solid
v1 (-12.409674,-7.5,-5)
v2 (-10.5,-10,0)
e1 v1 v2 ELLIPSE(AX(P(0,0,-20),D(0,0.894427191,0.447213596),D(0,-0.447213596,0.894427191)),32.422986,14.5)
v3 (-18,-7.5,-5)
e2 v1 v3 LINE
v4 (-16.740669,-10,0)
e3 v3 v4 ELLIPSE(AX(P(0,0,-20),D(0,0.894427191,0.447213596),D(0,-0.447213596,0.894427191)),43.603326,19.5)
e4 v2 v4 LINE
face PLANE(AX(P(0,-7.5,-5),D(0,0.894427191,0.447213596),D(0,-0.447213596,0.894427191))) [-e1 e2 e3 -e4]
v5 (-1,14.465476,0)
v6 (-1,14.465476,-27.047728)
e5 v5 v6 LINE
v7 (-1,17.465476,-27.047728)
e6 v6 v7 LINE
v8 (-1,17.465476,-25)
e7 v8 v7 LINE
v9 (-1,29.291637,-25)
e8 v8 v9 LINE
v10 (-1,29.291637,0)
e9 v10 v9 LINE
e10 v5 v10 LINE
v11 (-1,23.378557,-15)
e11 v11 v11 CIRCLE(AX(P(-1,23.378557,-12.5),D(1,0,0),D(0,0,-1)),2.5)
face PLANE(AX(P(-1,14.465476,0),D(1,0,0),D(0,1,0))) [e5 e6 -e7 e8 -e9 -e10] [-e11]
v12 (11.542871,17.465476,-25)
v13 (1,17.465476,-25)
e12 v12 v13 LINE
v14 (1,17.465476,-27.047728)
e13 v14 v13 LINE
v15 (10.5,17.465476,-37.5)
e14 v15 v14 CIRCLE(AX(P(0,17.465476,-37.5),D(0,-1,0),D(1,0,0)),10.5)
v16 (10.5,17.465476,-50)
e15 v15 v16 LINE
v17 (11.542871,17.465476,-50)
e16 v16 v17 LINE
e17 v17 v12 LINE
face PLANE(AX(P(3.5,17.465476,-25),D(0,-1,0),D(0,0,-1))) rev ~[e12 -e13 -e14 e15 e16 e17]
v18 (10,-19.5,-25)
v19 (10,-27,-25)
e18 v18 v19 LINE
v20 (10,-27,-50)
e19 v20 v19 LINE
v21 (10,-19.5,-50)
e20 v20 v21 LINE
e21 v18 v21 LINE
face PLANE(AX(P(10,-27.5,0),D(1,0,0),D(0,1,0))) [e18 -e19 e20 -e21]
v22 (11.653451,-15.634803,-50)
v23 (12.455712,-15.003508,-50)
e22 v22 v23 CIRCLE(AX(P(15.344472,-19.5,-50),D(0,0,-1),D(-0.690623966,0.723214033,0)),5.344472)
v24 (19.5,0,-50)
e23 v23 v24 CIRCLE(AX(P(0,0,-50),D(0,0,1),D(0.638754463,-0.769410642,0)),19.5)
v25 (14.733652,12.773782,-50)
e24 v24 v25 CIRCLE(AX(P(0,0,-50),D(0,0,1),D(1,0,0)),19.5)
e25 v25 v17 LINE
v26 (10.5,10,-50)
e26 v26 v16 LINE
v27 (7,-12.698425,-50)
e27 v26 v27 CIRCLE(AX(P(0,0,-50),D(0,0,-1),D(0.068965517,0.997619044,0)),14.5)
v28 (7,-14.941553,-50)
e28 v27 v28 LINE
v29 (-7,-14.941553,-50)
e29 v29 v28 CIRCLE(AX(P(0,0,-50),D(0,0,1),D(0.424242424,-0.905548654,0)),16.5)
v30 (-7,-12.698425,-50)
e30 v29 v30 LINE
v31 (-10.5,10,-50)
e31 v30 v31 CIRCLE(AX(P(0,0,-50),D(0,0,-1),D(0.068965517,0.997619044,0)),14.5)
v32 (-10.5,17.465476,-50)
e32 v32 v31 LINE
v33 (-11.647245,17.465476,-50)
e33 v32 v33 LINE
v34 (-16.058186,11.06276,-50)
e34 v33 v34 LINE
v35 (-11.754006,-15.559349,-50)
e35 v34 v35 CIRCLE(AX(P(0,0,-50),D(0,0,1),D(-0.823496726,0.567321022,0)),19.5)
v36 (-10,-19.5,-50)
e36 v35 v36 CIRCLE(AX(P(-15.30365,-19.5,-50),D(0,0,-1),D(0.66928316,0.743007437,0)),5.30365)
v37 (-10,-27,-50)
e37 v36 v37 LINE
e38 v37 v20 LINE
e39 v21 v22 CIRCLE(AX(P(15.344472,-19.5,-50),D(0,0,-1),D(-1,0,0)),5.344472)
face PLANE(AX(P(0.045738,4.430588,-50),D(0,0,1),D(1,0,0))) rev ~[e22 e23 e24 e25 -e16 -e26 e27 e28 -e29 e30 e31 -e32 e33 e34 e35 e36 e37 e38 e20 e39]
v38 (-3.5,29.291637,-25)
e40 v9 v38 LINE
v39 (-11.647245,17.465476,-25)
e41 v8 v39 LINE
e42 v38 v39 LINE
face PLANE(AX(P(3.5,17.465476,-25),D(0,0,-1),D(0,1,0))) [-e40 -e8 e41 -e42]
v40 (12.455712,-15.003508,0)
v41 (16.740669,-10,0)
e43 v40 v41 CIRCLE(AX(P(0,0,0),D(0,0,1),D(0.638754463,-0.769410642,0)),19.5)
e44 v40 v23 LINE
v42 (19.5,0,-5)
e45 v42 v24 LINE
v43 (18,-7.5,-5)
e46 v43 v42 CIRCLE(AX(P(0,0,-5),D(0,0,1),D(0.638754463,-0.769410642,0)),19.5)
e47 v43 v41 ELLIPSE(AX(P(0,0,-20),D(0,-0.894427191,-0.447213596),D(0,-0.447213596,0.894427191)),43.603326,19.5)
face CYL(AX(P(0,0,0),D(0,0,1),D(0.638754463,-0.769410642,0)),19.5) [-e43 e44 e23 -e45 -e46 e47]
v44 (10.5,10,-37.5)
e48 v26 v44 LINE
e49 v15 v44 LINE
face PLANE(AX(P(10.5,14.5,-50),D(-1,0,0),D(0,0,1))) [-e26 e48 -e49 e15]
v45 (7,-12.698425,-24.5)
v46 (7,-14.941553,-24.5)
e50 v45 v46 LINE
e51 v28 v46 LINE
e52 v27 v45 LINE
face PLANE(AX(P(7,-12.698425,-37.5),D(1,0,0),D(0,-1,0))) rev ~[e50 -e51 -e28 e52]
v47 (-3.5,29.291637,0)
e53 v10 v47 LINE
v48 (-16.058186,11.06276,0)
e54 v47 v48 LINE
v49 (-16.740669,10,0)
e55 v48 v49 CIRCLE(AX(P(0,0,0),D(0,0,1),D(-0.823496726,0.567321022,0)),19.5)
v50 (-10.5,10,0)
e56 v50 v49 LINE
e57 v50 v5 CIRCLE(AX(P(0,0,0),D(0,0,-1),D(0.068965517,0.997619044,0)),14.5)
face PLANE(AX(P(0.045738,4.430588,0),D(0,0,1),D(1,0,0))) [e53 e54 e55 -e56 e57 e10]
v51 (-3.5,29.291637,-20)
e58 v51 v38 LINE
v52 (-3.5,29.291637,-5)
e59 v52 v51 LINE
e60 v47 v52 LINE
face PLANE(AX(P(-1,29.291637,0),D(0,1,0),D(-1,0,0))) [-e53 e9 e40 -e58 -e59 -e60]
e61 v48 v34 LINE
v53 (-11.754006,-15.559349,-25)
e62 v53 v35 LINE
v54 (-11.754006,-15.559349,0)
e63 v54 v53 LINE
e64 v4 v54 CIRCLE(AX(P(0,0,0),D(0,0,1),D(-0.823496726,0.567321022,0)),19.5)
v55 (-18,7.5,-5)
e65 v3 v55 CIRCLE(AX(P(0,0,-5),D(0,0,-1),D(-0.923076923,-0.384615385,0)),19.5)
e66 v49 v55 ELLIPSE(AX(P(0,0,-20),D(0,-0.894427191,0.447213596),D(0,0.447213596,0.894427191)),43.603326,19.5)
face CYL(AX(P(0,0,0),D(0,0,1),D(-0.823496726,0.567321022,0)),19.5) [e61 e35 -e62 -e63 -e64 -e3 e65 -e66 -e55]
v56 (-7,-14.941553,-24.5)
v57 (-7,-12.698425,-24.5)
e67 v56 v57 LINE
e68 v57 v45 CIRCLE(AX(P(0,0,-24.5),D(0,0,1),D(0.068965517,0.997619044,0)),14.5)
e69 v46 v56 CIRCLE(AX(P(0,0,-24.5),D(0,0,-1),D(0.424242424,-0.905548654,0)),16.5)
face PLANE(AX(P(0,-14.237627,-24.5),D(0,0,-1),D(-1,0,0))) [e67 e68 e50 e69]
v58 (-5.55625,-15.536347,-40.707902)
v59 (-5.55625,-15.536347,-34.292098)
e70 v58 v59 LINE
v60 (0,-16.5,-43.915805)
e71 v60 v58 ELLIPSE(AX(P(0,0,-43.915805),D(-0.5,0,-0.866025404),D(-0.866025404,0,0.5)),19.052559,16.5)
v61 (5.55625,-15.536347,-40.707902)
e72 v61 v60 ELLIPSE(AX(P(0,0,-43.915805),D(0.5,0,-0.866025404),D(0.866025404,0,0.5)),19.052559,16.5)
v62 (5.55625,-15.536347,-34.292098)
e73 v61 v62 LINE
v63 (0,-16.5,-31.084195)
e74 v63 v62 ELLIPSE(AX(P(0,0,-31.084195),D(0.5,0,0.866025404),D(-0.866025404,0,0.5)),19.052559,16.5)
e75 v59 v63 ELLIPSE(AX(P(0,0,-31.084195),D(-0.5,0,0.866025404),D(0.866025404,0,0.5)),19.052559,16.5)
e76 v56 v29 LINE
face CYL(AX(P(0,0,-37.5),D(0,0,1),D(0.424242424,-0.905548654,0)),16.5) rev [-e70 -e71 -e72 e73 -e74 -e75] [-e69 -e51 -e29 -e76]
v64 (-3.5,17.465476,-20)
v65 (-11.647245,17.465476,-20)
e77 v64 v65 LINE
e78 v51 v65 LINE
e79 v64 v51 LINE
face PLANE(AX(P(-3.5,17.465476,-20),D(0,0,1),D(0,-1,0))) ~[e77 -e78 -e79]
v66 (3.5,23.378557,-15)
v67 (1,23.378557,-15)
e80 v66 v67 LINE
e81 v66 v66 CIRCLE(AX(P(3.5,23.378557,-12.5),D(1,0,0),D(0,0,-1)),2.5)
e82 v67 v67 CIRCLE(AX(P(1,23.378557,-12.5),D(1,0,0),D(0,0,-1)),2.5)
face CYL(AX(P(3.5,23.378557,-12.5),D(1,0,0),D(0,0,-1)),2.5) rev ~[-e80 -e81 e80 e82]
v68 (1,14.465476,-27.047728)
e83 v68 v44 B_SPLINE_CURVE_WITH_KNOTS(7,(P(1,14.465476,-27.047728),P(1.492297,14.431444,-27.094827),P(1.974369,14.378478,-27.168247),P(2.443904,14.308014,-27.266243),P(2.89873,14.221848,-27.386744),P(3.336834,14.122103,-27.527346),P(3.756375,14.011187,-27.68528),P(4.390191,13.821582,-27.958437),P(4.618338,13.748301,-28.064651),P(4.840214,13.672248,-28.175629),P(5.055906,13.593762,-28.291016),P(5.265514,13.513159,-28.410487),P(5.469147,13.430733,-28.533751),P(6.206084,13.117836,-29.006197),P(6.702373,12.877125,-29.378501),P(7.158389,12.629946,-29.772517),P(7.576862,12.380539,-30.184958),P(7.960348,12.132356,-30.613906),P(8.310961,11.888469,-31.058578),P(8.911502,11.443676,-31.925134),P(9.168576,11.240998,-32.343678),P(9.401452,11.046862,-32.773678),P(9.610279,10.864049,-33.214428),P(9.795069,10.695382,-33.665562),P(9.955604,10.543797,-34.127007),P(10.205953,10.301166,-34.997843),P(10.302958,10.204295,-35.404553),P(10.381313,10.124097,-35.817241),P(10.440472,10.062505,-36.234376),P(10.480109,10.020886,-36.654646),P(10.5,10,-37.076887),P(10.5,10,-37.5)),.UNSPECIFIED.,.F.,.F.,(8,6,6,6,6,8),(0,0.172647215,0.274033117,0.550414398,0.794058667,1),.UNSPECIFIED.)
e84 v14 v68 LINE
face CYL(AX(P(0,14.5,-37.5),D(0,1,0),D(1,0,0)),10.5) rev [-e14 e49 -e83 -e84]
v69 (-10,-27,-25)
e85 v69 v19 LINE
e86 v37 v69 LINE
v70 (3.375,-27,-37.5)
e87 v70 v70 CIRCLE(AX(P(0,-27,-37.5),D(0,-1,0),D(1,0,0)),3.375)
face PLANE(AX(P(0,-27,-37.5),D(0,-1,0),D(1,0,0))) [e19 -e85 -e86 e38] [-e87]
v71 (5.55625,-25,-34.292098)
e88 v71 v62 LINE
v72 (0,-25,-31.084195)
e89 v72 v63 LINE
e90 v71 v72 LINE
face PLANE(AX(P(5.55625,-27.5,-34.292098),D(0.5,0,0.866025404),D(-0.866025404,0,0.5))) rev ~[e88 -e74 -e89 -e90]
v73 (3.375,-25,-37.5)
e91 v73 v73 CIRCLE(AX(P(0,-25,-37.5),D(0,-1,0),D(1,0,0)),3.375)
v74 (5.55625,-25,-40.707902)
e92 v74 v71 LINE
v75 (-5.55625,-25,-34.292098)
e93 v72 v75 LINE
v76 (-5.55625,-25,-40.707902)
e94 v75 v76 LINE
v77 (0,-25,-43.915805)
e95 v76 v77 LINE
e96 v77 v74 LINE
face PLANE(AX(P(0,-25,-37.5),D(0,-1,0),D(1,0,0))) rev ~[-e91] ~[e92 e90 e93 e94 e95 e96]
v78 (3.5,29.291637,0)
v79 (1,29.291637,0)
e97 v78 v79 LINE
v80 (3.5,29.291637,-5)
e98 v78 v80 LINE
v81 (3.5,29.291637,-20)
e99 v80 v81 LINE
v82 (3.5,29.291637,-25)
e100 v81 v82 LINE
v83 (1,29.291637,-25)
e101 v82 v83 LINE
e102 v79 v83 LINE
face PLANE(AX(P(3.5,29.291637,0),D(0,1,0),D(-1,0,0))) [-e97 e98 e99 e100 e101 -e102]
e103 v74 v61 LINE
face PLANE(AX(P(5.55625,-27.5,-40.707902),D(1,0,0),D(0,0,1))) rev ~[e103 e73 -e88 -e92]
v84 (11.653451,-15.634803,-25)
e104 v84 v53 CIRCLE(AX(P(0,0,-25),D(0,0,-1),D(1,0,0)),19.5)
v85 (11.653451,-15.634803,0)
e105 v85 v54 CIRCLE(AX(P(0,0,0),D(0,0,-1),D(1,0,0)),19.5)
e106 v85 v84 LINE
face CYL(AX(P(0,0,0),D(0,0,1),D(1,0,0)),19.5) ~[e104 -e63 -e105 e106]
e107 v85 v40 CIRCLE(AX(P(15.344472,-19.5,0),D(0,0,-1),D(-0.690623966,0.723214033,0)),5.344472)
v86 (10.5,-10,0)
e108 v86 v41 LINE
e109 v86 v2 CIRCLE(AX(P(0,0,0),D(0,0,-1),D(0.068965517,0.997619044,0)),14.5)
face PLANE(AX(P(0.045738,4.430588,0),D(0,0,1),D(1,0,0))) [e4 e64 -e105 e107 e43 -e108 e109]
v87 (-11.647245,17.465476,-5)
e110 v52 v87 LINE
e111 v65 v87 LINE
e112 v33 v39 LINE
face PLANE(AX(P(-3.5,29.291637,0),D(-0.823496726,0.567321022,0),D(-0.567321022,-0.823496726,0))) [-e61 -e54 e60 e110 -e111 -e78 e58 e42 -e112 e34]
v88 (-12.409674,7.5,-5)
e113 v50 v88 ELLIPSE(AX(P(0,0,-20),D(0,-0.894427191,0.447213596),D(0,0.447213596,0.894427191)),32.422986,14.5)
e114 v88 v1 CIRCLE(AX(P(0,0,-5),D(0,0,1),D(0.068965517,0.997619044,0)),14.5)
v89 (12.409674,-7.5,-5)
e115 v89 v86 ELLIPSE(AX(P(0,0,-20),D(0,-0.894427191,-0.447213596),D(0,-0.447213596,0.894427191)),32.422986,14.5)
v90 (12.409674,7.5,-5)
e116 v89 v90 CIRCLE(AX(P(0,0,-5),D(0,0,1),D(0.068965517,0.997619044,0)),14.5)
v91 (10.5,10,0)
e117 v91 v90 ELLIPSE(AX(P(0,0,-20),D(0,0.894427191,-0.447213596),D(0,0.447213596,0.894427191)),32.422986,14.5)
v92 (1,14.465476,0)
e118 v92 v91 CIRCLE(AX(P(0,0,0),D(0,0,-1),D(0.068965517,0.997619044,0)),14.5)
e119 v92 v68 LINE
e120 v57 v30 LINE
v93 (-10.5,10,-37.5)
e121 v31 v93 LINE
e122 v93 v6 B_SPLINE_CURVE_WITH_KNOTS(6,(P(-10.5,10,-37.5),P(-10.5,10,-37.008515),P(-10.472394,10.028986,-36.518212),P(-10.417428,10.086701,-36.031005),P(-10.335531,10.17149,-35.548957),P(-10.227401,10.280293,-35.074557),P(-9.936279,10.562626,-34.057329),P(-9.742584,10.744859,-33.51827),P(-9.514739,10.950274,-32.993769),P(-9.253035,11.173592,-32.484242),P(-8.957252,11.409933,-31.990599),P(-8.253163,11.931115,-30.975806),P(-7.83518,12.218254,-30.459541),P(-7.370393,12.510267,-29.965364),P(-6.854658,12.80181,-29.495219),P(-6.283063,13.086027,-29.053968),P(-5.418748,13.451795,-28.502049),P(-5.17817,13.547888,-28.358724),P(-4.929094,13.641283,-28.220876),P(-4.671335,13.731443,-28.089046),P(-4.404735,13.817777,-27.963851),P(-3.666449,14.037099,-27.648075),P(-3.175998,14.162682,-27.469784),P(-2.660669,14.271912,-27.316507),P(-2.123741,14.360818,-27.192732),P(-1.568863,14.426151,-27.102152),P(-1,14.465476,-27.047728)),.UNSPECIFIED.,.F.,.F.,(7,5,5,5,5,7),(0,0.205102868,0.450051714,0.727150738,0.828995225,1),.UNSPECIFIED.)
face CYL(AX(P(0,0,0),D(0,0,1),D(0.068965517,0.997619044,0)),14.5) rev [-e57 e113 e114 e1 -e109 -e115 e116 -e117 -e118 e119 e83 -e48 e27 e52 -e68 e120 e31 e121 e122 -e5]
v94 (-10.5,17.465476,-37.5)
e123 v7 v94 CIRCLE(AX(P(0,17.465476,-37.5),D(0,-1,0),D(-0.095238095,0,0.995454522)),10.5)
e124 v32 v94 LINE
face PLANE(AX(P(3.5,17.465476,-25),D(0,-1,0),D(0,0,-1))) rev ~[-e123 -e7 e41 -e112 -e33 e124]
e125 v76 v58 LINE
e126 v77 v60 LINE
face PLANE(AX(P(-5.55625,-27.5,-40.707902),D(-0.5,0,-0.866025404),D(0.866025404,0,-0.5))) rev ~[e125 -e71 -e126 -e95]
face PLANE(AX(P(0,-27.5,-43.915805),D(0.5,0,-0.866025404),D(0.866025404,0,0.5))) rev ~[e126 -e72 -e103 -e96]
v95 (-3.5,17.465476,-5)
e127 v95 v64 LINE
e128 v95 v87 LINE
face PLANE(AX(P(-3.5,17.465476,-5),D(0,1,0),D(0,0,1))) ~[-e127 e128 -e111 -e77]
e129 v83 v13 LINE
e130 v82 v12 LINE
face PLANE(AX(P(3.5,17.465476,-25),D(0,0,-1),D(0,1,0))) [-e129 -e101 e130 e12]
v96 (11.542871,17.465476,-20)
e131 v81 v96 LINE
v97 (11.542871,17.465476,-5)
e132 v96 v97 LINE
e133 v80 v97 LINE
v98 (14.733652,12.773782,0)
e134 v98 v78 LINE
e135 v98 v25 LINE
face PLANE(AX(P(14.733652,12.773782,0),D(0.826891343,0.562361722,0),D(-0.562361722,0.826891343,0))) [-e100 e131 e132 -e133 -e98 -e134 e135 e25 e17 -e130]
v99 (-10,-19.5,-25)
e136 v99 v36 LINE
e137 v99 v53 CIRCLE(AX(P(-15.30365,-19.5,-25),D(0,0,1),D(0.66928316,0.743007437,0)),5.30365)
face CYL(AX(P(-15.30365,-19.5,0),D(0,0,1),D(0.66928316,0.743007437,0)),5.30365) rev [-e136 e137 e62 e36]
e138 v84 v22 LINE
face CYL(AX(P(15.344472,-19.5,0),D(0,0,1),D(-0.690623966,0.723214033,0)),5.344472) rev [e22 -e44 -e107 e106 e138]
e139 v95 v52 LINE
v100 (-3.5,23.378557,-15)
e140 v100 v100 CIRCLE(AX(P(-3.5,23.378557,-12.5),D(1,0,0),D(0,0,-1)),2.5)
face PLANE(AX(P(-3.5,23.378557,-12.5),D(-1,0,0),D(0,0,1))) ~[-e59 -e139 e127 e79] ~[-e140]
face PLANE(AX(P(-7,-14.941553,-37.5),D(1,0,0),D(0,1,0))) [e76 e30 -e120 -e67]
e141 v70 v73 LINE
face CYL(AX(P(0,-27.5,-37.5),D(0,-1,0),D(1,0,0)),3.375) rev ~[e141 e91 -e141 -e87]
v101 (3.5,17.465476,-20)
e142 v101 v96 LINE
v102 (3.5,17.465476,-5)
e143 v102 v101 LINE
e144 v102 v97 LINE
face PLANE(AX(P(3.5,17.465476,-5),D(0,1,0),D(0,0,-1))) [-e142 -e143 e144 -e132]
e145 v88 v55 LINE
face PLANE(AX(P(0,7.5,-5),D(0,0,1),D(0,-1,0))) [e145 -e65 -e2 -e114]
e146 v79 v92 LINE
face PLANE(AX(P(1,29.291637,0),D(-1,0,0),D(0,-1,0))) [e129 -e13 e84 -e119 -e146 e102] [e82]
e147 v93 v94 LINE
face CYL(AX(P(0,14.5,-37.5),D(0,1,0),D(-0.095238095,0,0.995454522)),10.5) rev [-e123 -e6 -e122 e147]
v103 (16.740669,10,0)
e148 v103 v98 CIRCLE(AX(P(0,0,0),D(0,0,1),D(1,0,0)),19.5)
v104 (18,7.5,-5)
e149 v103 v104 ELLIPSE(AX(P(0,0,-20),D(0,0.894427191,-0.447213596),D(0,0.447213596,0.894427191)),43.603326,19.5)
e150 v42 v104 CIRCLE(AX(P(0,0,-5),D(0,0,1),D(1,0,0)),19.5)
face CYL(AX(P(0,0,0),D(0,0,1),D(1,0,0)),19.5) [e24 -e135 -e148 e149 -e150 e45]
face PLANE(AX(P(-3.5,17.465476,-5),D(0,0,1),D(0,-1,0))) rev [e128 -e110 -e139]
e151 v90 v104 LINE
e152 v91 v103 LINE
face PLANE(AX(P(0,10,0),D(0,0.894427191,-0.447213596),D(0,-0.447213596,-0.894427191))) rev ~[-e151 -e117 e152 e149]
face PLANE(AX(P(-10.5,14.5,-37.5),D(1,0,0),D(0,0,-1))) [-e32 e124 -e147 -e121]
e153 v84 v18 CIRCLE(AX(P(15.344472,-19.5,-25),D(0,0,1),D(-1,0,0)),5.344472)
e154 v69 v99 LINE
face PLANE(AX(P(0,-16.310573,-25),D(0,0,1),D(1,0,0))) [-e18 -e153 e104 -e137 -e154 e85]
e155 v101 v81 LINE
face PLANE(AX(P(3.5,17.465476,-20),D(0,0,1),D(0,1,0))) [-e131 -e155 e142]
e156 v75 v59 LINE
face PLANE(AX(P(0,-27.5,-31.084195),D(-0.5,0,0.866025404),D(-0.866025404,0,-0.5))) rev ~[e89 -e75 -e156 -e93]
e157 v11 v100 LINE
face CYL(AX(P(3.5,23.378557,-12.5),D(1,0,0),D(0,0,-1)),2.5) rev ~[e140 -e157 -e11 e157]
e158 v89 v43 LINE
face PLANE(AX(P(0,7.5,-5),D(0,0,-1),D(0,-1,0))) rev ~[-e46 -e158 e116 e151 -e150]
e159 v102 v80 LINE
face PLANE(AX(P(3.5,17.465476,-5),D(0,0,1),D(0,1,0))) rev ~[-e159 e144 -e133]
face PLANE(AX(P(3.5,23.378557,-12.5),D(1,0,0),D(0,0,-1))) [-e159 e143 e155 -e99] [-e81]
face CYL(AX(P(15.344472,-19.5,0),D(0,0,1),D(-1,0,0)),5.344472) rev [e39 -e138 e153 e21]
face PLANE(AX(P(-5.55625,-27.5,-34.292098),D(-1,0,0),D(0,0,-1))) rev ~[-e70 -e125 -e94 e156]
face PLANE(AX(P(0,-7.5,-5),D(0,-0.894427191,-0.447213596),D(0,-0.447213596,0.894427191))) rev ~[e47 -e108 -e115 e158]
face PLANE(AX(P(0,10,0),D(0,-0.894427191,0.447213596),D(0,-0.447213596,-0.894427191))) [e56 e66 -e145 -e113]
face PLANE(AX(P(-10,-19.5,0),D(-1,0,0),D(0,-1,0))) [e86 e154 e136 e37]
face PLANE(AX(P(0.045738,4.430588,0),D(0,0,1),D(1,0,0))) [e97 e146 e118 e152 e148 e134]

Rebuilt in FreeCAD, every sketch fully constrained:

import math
import FreeCAD as App
import Part
import Sketcher
from FreeCAD import Vector
Q = App.Units.Quantity

doc = App.newDocument("Part")
params = doc.addObject("Spreadsheet::Sheet", "Params")
for row, (alias, value) in enumerate([
    ("sketch1_radius", "14.5 mm"),
    ("sketch1_radius2", "19.5 mm"),
    ("sketch1_width", "20 mm"),
    ("sketch1_height", "8 mm"),
    ("sketch1_width2", "2.5 mm"),
    ("pad1_length", "50 mm"),
    ("sketch2_height", "15 mm"),
    ("sketch3_diameter", "5 mm"),
    ("sketch4_height", "25 mm"),
    ("sketch5_radius", "10.5 mm"),
    ("sketch5_width", "9.5 mm"),
    ("sketch5_height", "12.5 mm"),
    ("pocket4_length", "4.5 mm"),
    ("sketch6_radius", "10.5 mm"),
    ("sketch6_width", "9.5 mm"),
    ("sketch6_height", "12.5 mm"),
    ("pocket5_length", "4.5 mm"),
    ("sketch7_radius", "10.5 mm"),
    ("sketch7_width", "9.5 mm"),
    ("sketch7_height", "12.5 mm"),
    ("sketch8_radius", "10.5 mm"),
    ("sketch8_width", "9.5 mm"),
    ("sketch8_height", "12.5 mm"),
    ("sketch9_radius", "16.5 mm"),
    ("sketch9_width", "14 mm"),
    ("pocket8_length", "13 mm"),
    ("pocket8_length2", "13.5 mm"),
    ("sketch10_width", "15 mm"),
    ("sketch10_width2", "20 mm"),
    ("sketch12_diameter", "6.75 mm"),
    ("pad2_length", "2.5 mm"),
    ("sketch13_radius", "19.5 mm"),
    ("sketch13_height", "27.5 mm"),
    ("pocket11_length", "25 mm"),
    ("sketch14_width", "20 mm"),
    ("sketch14_height", "25 mm"),
    ("pocket12_length", "0.5 mm"),
], start=1):
    params.set(f"A{row}", alias)
    params.set(f"B{row}", "=" + value)
    params.setAlias(f"B{row}", alias)

body = doc.addObject("PartDesign::Body", "Body")

# Sketch on XY plane
sketch1 = body.newObject("Sketcher::SketchObject", "Sketch")
sketch1.AttachmentSupport = (doc.getObject("XY_Plane"), [""])
sketch1.MapMode = "FlatFace"
sketch1.addGeometry([
    Part.LineSegment(Vector(3.5, 29.3, 0), Vector(1, 29.3, 0)),  # 0
    Part.LineSegment(Vector(1, 29.3, 0), Vector(1, 14.5, 0)),  # 1
    Part.ArcOfCircle(Part.Circle(Vector(0, 0, 0), Vector(0, 0, 1), 14.5), math.radians(94), math.radians(446)),  # 2
    Part.LineSegment(Vector(-1, 14.5, 0), Vector(-1, 29.3, 0)),  # 3
    Part.LineSegment(Vector(-1, 29.3, 0), Vector(-3.5, 29.3, 0)),  # 4
    Part.LineSegment(Vector(-3.5, 29.3, 0), Vector(-16.1, 11.1, 0)),  # 5
    Part.ArcOfCircle(Part.Circle(Vector(0, 0, 0), Vector(0, 0, 1), 19.5), math.radians(145), math.radians(233)),  # 6
    Part.ArcOfCircle(Part.Circle(Vector(-15.3, -19.5, 0), Vector(0, 0, 1), 5.3), math.radians(0), math.radians(48)),  # 7
    Part.LineSegment(Vector(-10, -19.5, 0), Vector(-10, -27.5, 0)),  # 8
    Part.LineSegment(Vector(-10, -27.5, 0), Vector(10, -27.5, 0)),  # 9
    Part.LineSegment(Vector(10, -27.5, 0), Vector(10, -19.5, 0)),  # 10
    Part.ArcOfCircle(Part.Circle(Vector(15.3, -19.5, 0), Vector(0, 0, 1), 5.3), math.radians(134), math.radians(180)),  # 11
    Part.ArcOfCircle(Part.Circle(Vector(15.3, -19.5, 0), Vector(0, 0, 1), 5.3), math.radians(122.72), math.radians(133.68)),  # 12
    Part.ArcOfCircle(Part.Circle(Vector(0, 0, 0), Vector(0, 0, 1), 19.5), math.radians(-50), math.radians(0)),  # 13
    Part.ArcOfCircle(Part.Circle(Vector(0, 0, 0), Vector(0, 0, 1), 19.5), math.radians(0), math.radians(41)),  # 14
    Part.LineSegment(Vector(14.7, 12.8, 0), Vector(3.5, 29.3, 0)),  # 15
], False)
sketch1.addConstraint([
    Sketcher.Constraint("Coincident", 0, 2, 1, 1),
    Sketcher.Constraint("Coincident", 1, 2, 2, 2),
    Sketcher.Constraint("Coincident", 2, 1, 3, 1),
    Sketcher.Constraint("Coincident", 3, 2, 4, 1),
    Sketcher.Constraint("Coincident", 4, 2, 5, 1),
    Sketcher.Constraint("Tangent", 5, 2, 6, 1),
    Sketcher.Constraint("Coincident", 6, 2, 7, 2),
    Sketcher.Constraint("Tangent", 7, 1, 8, 1),
    Sketcher.Constraint("Coincident", 8, 2, 9, 1),
    Sketcher.Constraint("Coincident", 9, 2, 10, 1),
    Sketcher.Constraint("Tangent", 10, 2, 11, 2),
    Sketcher.Constraint("Tangent", 11, 1, 12, 2),
    Sketcher.Constraint("Coincident", 12, 1, 13, 1),
    Sketcher.Constraint("Tangent", 13, 2, 14, 1),
    Sketcher.Constraint("Coincident", 14, 2, 15, 1),
    Sketcher.Constraint("Coincident", 15, 2, 0, 1),
    Sketcher.Constraint("Horizontal", 0),
    Sketcher.Constraint("Vertical", 1),
    Sketcher.Constraint("Vertical", 3),
    Sketcher.Constraint("Horizontal", 4),
    Sketcher.Constraint("Vertical", 8),
    Sketcher.Constraint("Horizontal", 9),
    Sketcher.Constraint("Vertical", 10),
    Sketcher.Constraint("Coincident", 2, 3, -1, 1),
    Sketcher.Constraint("Coincident", 6, 3, -1, 1),
    Sketcher.Constraint("Coincident", 13, 3, -1, 1),
    Sketcher.Constraint("Equal", 11, 12),
    Sketcher.Constraint("Equal", 6, 13),
    Sketcher.Constraint("Equal", 13, 14),
    Sketcher.Constraint("Symmetric", 0, 2, 3, 2, -2),
    Sketcher.Constraint("Symmetric", 7, 1, 10, 2, -2),
    Sketcher.Constraint("PointOnObject", 13, 2, -1),
    Sketcher.Constraint("Equal", 0, 4),
    Sketcher.Constraint("Radius", 2, Q("14.5 mm")),
    Sketcher.Constraint("Radius", 6, Q("19.5 mm")),
    Sketcher.Constraint("DistanceX", 9, 1, 9, 2, Q("20 mm")),
    Sketcher.Constraint("DistanceY", 8, 2, 8, 1, Q("8 mm")),
    Sketcher.Constraint("DistanceX", 0, 2, 0, 1, Q("2.5 mm")),
    Sketcher.Constraint("DistanceX", -1, 1, 0, 2, Q("1 mm")),
    Sketcher.Constraint("DistanceY", 7, 3, -1, 1, Q("19.5 mm")),
    Sketcher.Constraint("Radius", 7, Q("5.30365 mm")),
    Sketcher.Constraint("Radius", 11, Q("5.344472 mm")),
    Sketcher.Constraint("DistanceY", 1, 2, 1, 1, Q("14.826161 mm")),
    Sketcher.Constraint("DistanceX", -1, 1, 11, 1, Q("11.653451 mm")),
    Sketcher.Constraint("DistanceX", -1, 1, 14, 2, Q("14.733652 mm")),
])
sketch1.setExpression("Constraints[33]", "Params.sketch1_radius")
sketch1.setExpression("Constraints[34]", "Params.sketch1_radius2")
sketch1.setExpression("Constraints[35]", "Params.sketch1_width")
sketch1.setExpression("Constraints[36]", "Params.sketch1_height")
sketch1.setExpression("Constraints[37]", "Params.sketch1_width2")
pad1 = body.newObject("PartDesign::Pad", "Pad")
pad1.Profile = sketch1
pad1.setExpression("Length", "Params.pad1_length")
pad1.Reversed = True

# Sketch on YZ plane
sketch2 = body.newObject("Sketcher::SketchObject", "Sketch001")
sketch2.AttachmentSupport = (doc.getObject("YZ_Plane"), [""])
sketch2.MapMode = "FlatFace"
sketch2.AttachmentOffset = App.Placement(Vector(0, 0, 3.5), App.Rotation())
sketch2.addGeometry([
    Part.LineSegment(Vector(29, -5, 0), Vector(17, -5, 0)),
    Part.LineSegment(Vector(17, -5, 0), Vector(17, -20, 0)),
    Part.LineSegment(Vector(17, -20, 0), Vector(29, -20, 0)),
    Part.LineSegment(Vector(29, -20, 0), Vector(29, -5, 0)),
], False)
sketch2.addConstraint([
    Sketcher.Constraint("Coincident", 0, 2, 1, 1),
    Sketcher.Constraint("Coincident", 1, 2, 2, 1),
    Sketcher.Constraint("Coincident", 2, 2, 3, 1),
    Sketcher.Constraint("Coincident", 3, 2, 0, 1),
    Sketcher.Constraint("Horizontal", 0),
    Sketcher.Constraint("Vertical", 1),
    Sketcher.Constraint("Horizontal", 2),
    Sketcher.Constraint("Vertical", 3),
    Sketcher.Constraint("DistanceY", 1, 2, 1, 1, Q("15 mm")),
    Sketcher.Constraint("DistanceY", 0, 2, -1, 1, Q("5 mm")),
    Sketcher.Constraint("DistanceX", 0, 2, 0, 1, Q("11.826161 mm")),
    Sketcher.Constraint("DistanceX", -1, 1, 0, 2, Q("17.465476 mm")),
])
sketch2.setExpression("Constraints[8]", "Params.sketch2_height")
pocket1 = body.newObject("PartDesign::Pocket", "Pocket")
pocket1.Profile = sketch2
pocket1.Type = "ThroughAll"
pocket1.Reversed = True
doc.recompute()

mirrored = body.newObject("PartDesign::Mirrored", "Mirrored")
mirrored.Originals = [pocket1]
mirrored.MirrorPlane = (doc.getObject("YZ_Plane"), [""])
body.Tip = mirrored

# Sketch on YZ plane
sketch3 = body.newObject("Sketcher::SketchObject", "Sketch002")
sketch3.AttachmentSupport = (doc.getObject("YZ_Plane"), [""])
sketch3.MapMode = "FlatFace"
sketch3.AttachmentOffset = App.Placement(Vector(0, 0, 3.5), App.Rotation())
sketch3.addGeometry(Part.Circle(Vector(23.4, -12.5, 0), Vector(0, 0, 1), 2.5), False)
sketch3.addConstraint([
    Sketcher.Constraint("Diameter", 0, Q("5 mm")),
    Sketcher.Constraint("DistanceY", 0, 3, -1, 1, Q("12.5 mm")),
    Sketcher.Constraint("DistanceX", -1, 1, 0, 3, Q("23.378557 mm")),
])
sketch3.setExpression("Constraints[0]", "Params.sketch3_diameter")
pocket2 = body.newObject("PartDesign::Pocket", "Pocket001")
pocket2.Profile = sketch3
pocket2.Type = "ThroughAll"
pocket2.Midplane = True

# Sketch on YZ plane
sketch4 = body.newObject("Sketcher::SketchObject", "Sketch003")
sketch4.AttachmentSupport = (doc.getObject("YZ_Plane"), [""])
sketch4.MapMode = "FlatFace"
sketch4.AttachmentOffset = App.Placement(Vector(0, 0, 3.5), App.Rotation())
sketch4.addGeometry([
    Part.LineSegment(Vector(29, -25, 0), Vector(17, -25, 0)),
    Part.LineSegment(Vector(17, -25, 0), Vector(17, -50, 0)),
    Part.LineSegment(Vector(17, -50, 0), Vector(29, -50, 0)),
    Part.LineSegment(Vector(29, -50, 0), Vector(29, -25, 0)),
], False)
sketch4.addConstraint([
    Sketcher.Constraint("Coincident", 0, 2, 1, 1),
    Sketcher.Constraint("Coincident", 1, 2, 2, 1),
    Sketcher.Constraint("Coincident", 2, 2, 3, 1),
    Sketcher.Constraint("Coincident", 3, 2, 0, 1),
    Sketcher.Constraint("Horizontal", 0),
    Sketcher.Constraint("Vertical", 1),
    Sketcher.Constraint("Horizontal", 2),
    Sketcher.Constraint("Vertical", 3),
    Sketcher.Constraint("DistanceY", 1, 2, 1, 1, Q("25 mm")),
    Sketcher.Constraint("DistanceY", 0, 2, -1, 1, Q("25 mm")),
    Sketcher.Constraint("DistanceX", 0, 2, 0, 1, Q("11.826161 mm")),
    Sketcher.Constraint("DistanceX", -1, 1, 0, 2, Q("17.465476 mm")),
])
sketch4.setExpression("Constraints[8]", "Params.sketch4_height")
pocket3 = body.newObject("PartDesign::Pocket", "Pocket002")
pocket3.Profile = sketch4
pocket3.Type = "ThroughAll"
pocket3.Midplane = True

# Sketch on XZ plane
sketch5 = body.newObject("Sketcher::SketchObject", "Sketch004")
sketch5.AttachmentSupport = (doc.getObject("XZ_Plane"), [""])
sketch5.MapMode = "FlatFace"
sketch5.AttachmentOffset = App.Placement(Vector(0, 0, -14.5), App.Rotation())
sketch5.addGeometry([
    Part.LineSegment(Vector(-10, -50, 0), Vector(-10, -38, 0)),
    Part.ArcOfCircle(Part.Circle(Vector(0, -38, 0), Vector(0, 0, 1), 10), math.radians(95), math.radians(180)),
    Part.LineSegment(Vector(-1, -27, 0), Vector(-1, -50, 0)),
    Part.LineSegment(Vector(-1, -50, 0), Vector(-10, -50, 0)),
], False)
sketch5.addConstraint([
    Sketcher.Constraint("Tangent", 0, 2, 1, 2),
    Sketcher.Constraint("Coincident", 1, 1, 2, 1),
    Sketcher.Constraint("Coincident", 2, 2, 3, 1),
    Sketcher.Constraint("Coincident", 3, 2, 0, 1),
    Sketcher.Constraint("Vertical", 0),
    Sketcher.Constraint("Vertical", 2),
    Sketcher.Constraint("Horizontal", 3),
    Sketcher.Constraint("PointOnObject", 1, 3, -2),
    Sketcher.Constraint("Radius", 1, Q("10.5 mm")),
    Sketcher.Constraint("DistanceX", 3, 2, 3, 1, Q("9.5 mm")),
    Sketcher.Constraint("DistanceY", 0, 1, 0, 2, Q("12.5 mm")),
    Sketcher.Constraint("DistanceY", 2, 2, -1, 1, Q("50 mm")),
])
sketch5.setExpression("Constraints[8]", "Params.sketch5_radius")
sketch5.setExpression("Constraints[9]", "Params.sketch5_width")
sketch5.setExpression("Constraints[10]", "Params.sketch5_height")
pocket4 = body.newObject("PartDesign::Pocket", "Pocket003")
pocket4.Profile = sketch5
pocket4.setExpression("Length", "Params.pocket4_length")
pocket4.Reversed = True

# Sketch on XZ plane
sketch6 = body.newObject("Sketcher::SketchObject", "Sketch005")
sketch6.AttachmentSupport = (doc.getObject("XZ_Plane"), [""])
sketch6.MapMode = "FlatFace"
sketch6.AttachmentOffset = App.Placement(Vector(0, 0, -14.5), App.Rotation())
sketch6.addGeometry([
    Part.LineSegment(Vector(10, -38, 0), Vector(10, -50, 0)),
    Part.LineSegment(Vector(10, -50, 0), Vector(1, -50, 0)),
    Part.LineSegment(Vector(1, -50, 0), Vector(1, -27, 0)),
    Part.ArcOfCircle(Part.Circle(Vector(0, -38, 0), Vector(0, 0, 1), 10), math.radians(0), math.radians(85)),
], False)
sketch6.addConstraint([
    Sketcher.Constraint("Coincident", 0, 2, 1, 1),
    Sketcher.Constraint("Coincident", 1, 2, 2, 1),
    Sketcher.Constraint("Coincident", 2, 2, 3, 2),
    Sketcher.Constraint("Tangent", 3, 1, 0, 1),
    Sketcher.Constraint("Vertical", 0),
    Sketcher.Constraint("Horizontal", 1),
    Sketcher.Constraint("Vertical", 2),
    Sketcher.Constraint("PointOnObject", 3, 3, -2),
    Sketcher.Constraint("Radius", 3, Q("10.5 mm")),
    Sketcher.Constraint("DistanceX", 1, 2, 1, 1, Q("9.5 mm")),
    Sketcher.Constraint("DistanceY", 0, 2, 0, 1, Q("12.5 mm")),
    Sketcher.Constraint("DistanceY", 0, 2, -1, 1, Q("50 mm")),
])
sketch6.setExpression("Constraints[8]", "Params.sketch6_radius")
sketch6.setExpression("Constraints[9]", "Params.sketch6_width")
sketch6.setExpression("Constraints[10]", "Params.sketch6_height")
pocket5 = body.newObject("PartDesign::Pocket", "Pocket004")
pocket5.Profile = sketch6
pocket5.setExpression("Length", "Params.pocket5_length")
pocket5.Reversed = True

# Sketch on XZ plane
sketch7 = body.newObject("Sketcher::SketchObject", "Sketch006")
sketch7.AttachmentSupport = (doc.getObject("XZ_Plane"), [""])
sketch7.MapMode = "FlatFace"
sketch7.AttachmentOffset = App.Placement(Vector(0, 0, -14.5), App.Rotation())
sketch7.addGeometry([
    Part.LineSegment(Vector(-10, -50, 0), Vector(-10, -38, 0)),
    Part.ArcOfCircle(Part.Circle(Vector(0, -38, 0), Vector(0, 0, 1), 10), math.radians(95), math.radians(180)),
    Part.LineSegment(Vector(-1, -27, 0), Vector(-1, -50, 0)),
    Part.LineSegment(Vector(-1, -50, 0), Vector(-10, -50, 0)),
], False)
sketch7.addConstraint([
    Sketcher.Constraint("Tangent", 0, 2, 1, 2),
    Sketcher.Constraint("Coincident", 1, 1, 2, 1),
    Sketcher.Constraint("Coincident", 2, 2, 3, 1),
    Sketcher.Constraint("Coincident", 3, 2, 0, 1),
    Sketcher.Constraint("Vertical", 0),
    Sketcher.Constraint("Vertical", 2),
    Sketcher.Constraint("Horizontal", 3),
    Sketcher.Constraint("PointOnObject", 1, 3, -2),
    Sketcher.Constraint("Radius", 1, Q("10.5 mm")),
    Sketcher.Constraint("DistanceX", 3, 2, 3, 1, Q("9.5 mm")),
    Sketcher.Constraint("DistanceY", 0, 1, 0, 2, Q("12.5 mm")),
    Sketcher.Constraint("DistanceY", 2, 2, -1, 1, Q("50 mm")),
])
sketch7.setExpression("Constraints[8]", "Params.sketch7_radius")
sketch7.setExpression("Constraints[9]", "Params.sketch7_width")
sketch7.setExpression("Constraints[10]", "Params.sketch7_height")
pocket6 = body.newObject("PartDesign::Pocket", "Pocket005")
pocket6.Profile = sketch7
pocket6.Type = "UpToFirst"

# Sketch on XZ plane
sketch8 = body.newObject("Sketcher::SketchObject", "Sketch007")
sketch8.AttachmentSupport = (doc.getObject("XZ_Plane"), [""])
sketch8.MapMode = "FlatFace"
sketch8.AttachmentOffset = App.Placement(Vector(0, 0, -14.5), App.Rotation())
sketch8.addGeometry([
    Part.LineSegment(Vector(10, -38, 0), Vector(10, -50, 0)),
    Part.LineSegment(Vector(10, -50, 0), Vector(1, -50, 0)),
    Part.LineSegment(Vector(1, -50, 0), Vector(1, -27, 0)),
    Part.ArcOfCircle(Part.Circle(Vector(0, -38, 0), Vector(0, 0, 1), 10), math.radians(0), math.radians(85)),
], False)
sketch8.addConstraint([
    Sketcher.Constraint("Coincident", 0, 2, 1, 1),
    Sketcher.Constraint("Coincident", 1, 2, 2, 1),
    Sketcher.Constraint("Coincident", 2, 2, 3, 2),
    Sketcher.Constraint("Tangent", 3, 1, 0, 1),
    Sketcher.Constraint("Vertical", 0),
    Sketcher.Constraint("Horizontal", 1),
    Sketcher.Constraint("Vertical", 2),
    Sketcher.Constraint("PointOnObject", 3, 3, -2),
    Sketcher.Constraint("Radius", 3, Q("10.5 mm")),
    Sketcher.Constraint("DistanceX", 1, 2, 1, 1, Q("9.5 mm")),
    Sketcher.Constraint("DistanceY", 0, 2, 0, 1, Q("12.5 mm")),
    Sketcher.Constraint("DistanceY", 0, 2, -1, 1, Q("50 mm")),
])
sketch8.setExpression("Constraints[8]", "Params.sketch8_radius")
sketch8.setExpression("Constraints[9]", "Params.sketch8_width")
sketch8.setExpression("Constraints[10]", "Params.sketch8_height")
pocket7 = body.newObject("PartDesign::Pocket", "Pocket006")
pocket7.Profile = sketch8
pocket7.Type = "UpToFirst"

# Sketch on XY plane
sketch9 = body.newObject("Sketcher::SketchObject", "Sketch008")
sketch9.AttachmentSupport = (doc.getObject("XY_Plane"), [""])
sketch9.MapMode = "FlatFace"
sketch9.AttachmentOffset = App.Placement(Vector(0, 0, -37.5), App.Rotation())
sketch9.addGeometry([
    Part.LineSegment(Vector(7, -12.7, 0), Vector(-7, -12.7, 0)),
    Part.LineSegment(Vector(-7, -12.7, 0), Vector(-7, -14.9, 0)),
    Part.ArcOfCircle(Part.Circle(Vector(0, 0, 0), Vector(0, 0, 1), 16.5), math.radians(-115), math.radians(-65)),
    Part.LineSegment(Vector(7, -14.9, 0), Vector(7, -12.7, 0)),
], False)
sketch9.addConstraint([
    Sketcher.Constraint("Coincident", 0, 2, 1, 1),
    Sketcher.Constraint("Coincident", 1, 2, 2, 1),
    Sketcher.Constraint("Coincident", 2, 2, 3, 1),
    Sketcher.Constraint("Coincident", 3, 2, 0, 1),
    Sketcher.Constraint("Horizontal", 0),
    Sketcher.Constraint("Vertical", 1),
    Sketcher.Constraint("Vertical", 3),
    Sketcher.Constraint("Coincident", 2, 3, -1, 1),
    Sketcher.Constraint("Horizontal", 1, 2, 2, 2),
    Sketcher.Constraint("Radius", 2, Q("16.5 mm")),
    Sketcher.Constraint("DistanceX", 0, 2, 0, 1, Q("14 mm")),
    Sketcher.Constraint("DistanceY", 1, 2, 1, 1, Q("2.243128 mm")),
])
sketch9.setExpression("Constraints[9]", "Params.sketch9_radius")
sketch9.setExpression("Constraints[10]", "Params.sketch9_width")
pocket8 = body.newObject("PartDesign::Pocket", "Pocket007")
pocket8.Profile = sketch9
pocket8.Type = "TwoLengths"
pocket8.setExpression("Length", "Params.pocket8_length")
pocket8.setExpression("Length2", "Params.pocket8_length2")
pocket8.Reversed = True

# Sketch on YZ plane
sketch10 = body.newObject("Sketcher::SketchObject", "Sketch009")
sketch10.AttachmentSupport = (doc.getObject("YZ_Plane"), [""])
sketch10.MapMode = "FlatFace"
sketch10.addGeometry([
    Part.LineSegment(Vector(-10, 0, 0), Vector(-8, -5, 0)),
    Part.LineSegment(Vector(-8, -5, 0), Vector(8, -5, 0)),
    Part.LineSegment(Vector(8, -5, 0), Vector(10, 0, 0)),
    Part.LineSegment(Vector(10, 0, 0), Vector(-10, 0, 0)),
], False)
sketch10.addConstraint([
    Sketcher.Constraint("Coincident", 0, 2, 1, 1),
    Sketcher.Constraint("Coincident", 1, 2, 2, 1),
    Sketcher.Constraint("Coincident", 2, 2, 3, 1),
    Sketcher.Constraint("Coincident", 3, 2, 0, 1),
    Sketcher.Constraint("Horizontal", 1),
    Sketcher.Constraint("Horizontal", 3),
    Sketcher.Constraint("Symmetric", 2, 2, 3, 2, -1, 1),
    Sketcher.Constraint("Equal", 0, 2),
    Sketcher.Constraint("DistanceX", 1, 1, 1, 2, Q("15 mm")),
    Sketcher.Constraint("DistanceX", 3, 2, 3, 1, Q("20 mm")),
    Sketcher.Constraint("DistanceY", 0, 2, -1, 1, Q("5 mm")),
])
sketch10.setExpression("Constraints[8]", "Params.sketch10_width")
sketch10.setExpression("Constraints[9]", "Params.sketch10_width2")
pocket9 = body.newObject("PartDesign::Pocket", "Pocket008")
pocket9.Profile = sketch10
pocket9.Type = "ThroughAll"
pocket9.Midplane = True

# Sketch on XZ plane
sketch11 = body.newObject("Sketcher::SketchObject", "Sketch010")
sketch11.AttachmentSupport = (doc.getObject("XZ_Plane"), [""])
sketch11.MapMode = "FlatFace"
sketch11.AttachmentOffset = App.Placement(Vector(0, 0, 27.5), App.Rotation())
sketch11.addGeometry([
    Part.LineSegment(Vector(0, -31, 0), Vector(-6, -34, 0)),  # 0
    Part.LineSegment(Vector(-6, -34, 0), Vector(-6, -41, 0)),  # 1
    Part.LineSegment(Vector(-6, -41, 0), Vector(0, -44, 0)),  # 2
    Part.LineSegment(Vector(0, -44, 0), Vector(6, -41, 0)),  # 3
    Part.LineSegment(Vector(6, -41, 0), Vector(6, -34, 0)),  # 4
    Part.LineSegment(Vector(6, -34, 0), Vector(0, -31, 0)),  # 5
], False)
sketch11.addConstraint([
    Sketcher.Constraint("Coincident", 0, 2, 1, 1),
    Sketcher.Constraint("Coincident", 1, 2, 2, 1),
    Sketcher.Constraint("Coincident", 2, 2, 3, 1),
    Sketcher.Constraint("Coincident", 3, 2, 4, 1),
    Sketcher.Constraint("Coincident", 4, 2, 5, 1),
    Sketcher.Constraint("Coincident", 5, 2, 0, 1),
    Sketcher.Constraint("Vertical", 1),
    Sketcher.Constraint("Vertical", 4),
    Sketcher.Constraint("Symmetric", 1, 2, 3, 2, -2),
    Sketcher.Constraint("PointOnObject", 2, 2, -2),
    Sketcher.Constraint("PointOnObject", 5, 2, -2),
    Sketcher.Constraint("Parallel", 0, 3),
    Sketcher.Constraint("Parallel", 2, 5),
    Sketcher.Constraint("Angle", 0, Q("-150 deg")),
    Sketcher.Constraint("DistanceX", 1, 2, 3, 2, Q("11.1125 mm")),
    Sketcher.Constraint("DistanceY", 1, 2, 1, 1, Q("6.415805 mm")),
    Sketcher.Constraint("DistanceY", 0, 2, -1, 1, Q("34.292098 mm")),
])
pocket10 = body.newObject("PartDesign::Pocket", "Pocket009")
pocket10.Profile = sketch11
pocket10.Type = "UpToFirst"

# Sketch on XZ plane
sketch12 = body.newObject("Sketcher::SketchObject", "Sketch011")
sketch12.AttachmentSupport = (doc.getObject("XZ_Plane"), [""])
sketch12.MapMode = "FlatFace"
sketch12.AttachmentOffset = App.Placement(Vector(0, 0, 27.5), App.Rotation())
sketch12.addGeometry([
    Part.LineSegment(Vector(5.6, -40.7, 0), Vector(5.6, -34.3, 0)),  # 0
    Part.LineSegment(Vector(5.6, -34.3, 0), Vector(0, -31.1, 0)),  # 1
    Part.LineSegment(Vector(0, -31.1, 0), Vector(-5.6, -34.3, 0)),  # 2
    Part.LineSegment(Vector(-5.6, -34.3, 0), Vector(-5.6, -40.7, 0)),  # 3
    Part.LineSegment(Vector(-5.6, -40.7, 0), Vector(0, -43.9, 0)),  # 4
    Part.LineSegment(Vector(0, -43.9, 0), Vector(5.6, -40.7, 0)),  # 5
    Part.Circle(Vector(0, -37.5, 0), Vector(0, 0, 1), 3.4),  # 6
], False)
sketch12.addConstraint([
    Sketcher.Constraint("Coincident", 0, 2, 1, 1),
    Sketcher.Constraint("Coincident", 1, 2, 2, 1),
    Sketcher.Constraint("Coincident", 2, 2, 3, 1),
    Sketcher.Constraint("Coincident", 3, 2, 4, 1),
    Sketcher.Constraint("Coincident", 4, 2, 5, 1),
    Sketcher.Constraint("Coincident", 5, 2, 0, 1),
    Sketcher.Constraint("Vertical", 0),
    Sketcher.Constraint("Vertical", 3),
    Sketcher.Constraint("Symmetric", 0, 2, 2, 2, -2),
    Sketcher.Constraint("PointOnObject", 6, 3, -2),
    Sketcher.Constraint("PointOnObject", 1, 2, -2),
    Sketcher.Constraint("PointOnObject", 4, 2, -2),
    Sketcher.Constraint("Parallel", 1, 4),
    Sketcher.Constraint("Parallel", 2, 5),
    Sketcher.Constraint("Diameter", 6, Q("6.75 mm")),
    Sketcher.Constraint("Angle", 1, Q("150 deg")),
    Sketcher.Constraint("DistanceY", 6, 3, -1, 1, Q("37.5 mm")),
    Sketcher.Constraint("DistanceX", 2, 2, 0, 2, Q("11.1125 mm")),
    Sketcher.Constraint("DistanceY", 0, 1, 0, 2, Q("6.415805 mm")),
    Sketcher.Constraint("DistanceY", 0, 2, -1, 1, Q("34.292098 mm")),
])
sketch12.setExpression("Constraints[14]", "Params.sketch12_diameter")
pad2 = body.newObject("PartDesign::Pad", "Pad001")
pad2.Profile = sketch12
pad2.setExpression("Length", "Params.pad2_length")
pad2.Reversed = True

# Sketch on XY plane
sketch13 = body.newObject("Sketcher::SketchObject", "Sketch012")
sketch13.AttachmentSupport = (doc.getObject("XY_Plane"), [""])
sketch13.MapMode = "FlatFace"
sketch13.addGeometry([
    Part.LineSegment(Vector(-20, 0, 0), Vector(-20, -28, 0)),
    Part.LineSegment(Vector(-20, -28, 0), Vector(20, -28, 0)),
    Part.LineSegment(Vector(20, -28, 0), Vector(20, 0, 0)),
    Part.ArcOfCircle(Part.Circle(Vector(0, 0, 0), Vector(0, 0, 1), 20), math.radians(180), math.radians(360)),
], False)
sketch13.addConstraint([
    Sketcher.Constraint("Coincident", 0, 2, 1, 1),
    Sketcher.Constraint("Coincident", 1, 2, 2, 1),
    Sketcher.Constraint("Tangent", 2, 2, 3, 2),
    Sketcher.Constraint("Tangent", 3, 1, 0, 1),
    Sketcher.Constraint("Vertical", 0),
    Sketcher.Constraint("Horizontal", 1),
    Sketcher.Constraint("Vertical", 2),
    Sketcher.Constraint("Coincident", 3, 3, -1, 1),
    Sketcher.Constraint("Radius", 3, Q("19.5 mm")),
    Sketcher.Constraint("DistanceY", 0, 2, 0, 1, Q("27.5 mm")),
])
sketch13.setExpression("Constraints[8]", "Params.sketch13_radius")
sketch13.setExpression("Constraints[9]", "Params.sketch13_height")
pocket11 = body.newObject("PartDesign::Pocket", "Pocket010")
pocket11.Profile = sketch13
pocket11.setExpression("Length", "Params.pocket11_length")

# Sketch on XZ plane
sketch14 = body.newObject("Sketcher::SketchObject", "Sketch013")
sketch14.AttachmentSupport = (doc.getObject("XZ_Plane"), [""])
sketch14.MapMode = "FlatFace"
sketch14.AttachmentOffset = App.Placement(Vector(0, 0, 27.5), App.Rotation())
sketch14.addGeometry([
    Part.LineSegment(Vector(-10, -25, 0), Vector(-10, -50, 0)),
    Part.LineSegment(Vector(-10, -50, 0), Vector(10, -50, 0)),
    Part.LineSegment(Vector(10, -50, 0), Vector(10, -25, 0)),
    Part.LineSegment(Vector(10, -25, 0), Vector(-10, -25, 0)),
], False)
sketch14.addConstraint([
    Sketcher.Constraint("Coincident", 0, 2, 1, 1),
    Sketcher.Constraint("Coincident", 1, 2, 2, 1),
    Sketcher.Constraint("Coincident", 2, 2, 3, 1),
    Sketcher.Constraint("Coincident", 3, 2, 0, 1),
    Sketcher.Constraint("Vertical", 0),
    Sketcher.Constraint("Horizontal", 1),
    Sketcher.Constraint("Vertical", 2),
    Sketcher.Constraint("Horizontal", 3),
    Sketcher.Constraint("DistanceX", 1, 1, 1, 2, Q("20 mm")),
    Sketcher.Constraint("DistanceY", 0, 2, 0, 1, Q("25 mm")),
    Sketcher.Constraint("DistanceX", 0, 2, -1, 1, Q("10 mm")),
    Sketcher.Constraint("DistanceY", 0, 2, -1, 1, Q("50 mm")),
])
sketch14.setExpression("Constraints[8]", "Params.sketch14_width")
sketch14.setExpression("Constraints[9]", "Params.sketch14_height")
pocket12 = body.newObject("PartDesign::Pocket", "Pocket011")
pocket12.Profile = sketch14
pocket12.setExpression("Length", "Params.pocket12_length")

doc.recompute()
